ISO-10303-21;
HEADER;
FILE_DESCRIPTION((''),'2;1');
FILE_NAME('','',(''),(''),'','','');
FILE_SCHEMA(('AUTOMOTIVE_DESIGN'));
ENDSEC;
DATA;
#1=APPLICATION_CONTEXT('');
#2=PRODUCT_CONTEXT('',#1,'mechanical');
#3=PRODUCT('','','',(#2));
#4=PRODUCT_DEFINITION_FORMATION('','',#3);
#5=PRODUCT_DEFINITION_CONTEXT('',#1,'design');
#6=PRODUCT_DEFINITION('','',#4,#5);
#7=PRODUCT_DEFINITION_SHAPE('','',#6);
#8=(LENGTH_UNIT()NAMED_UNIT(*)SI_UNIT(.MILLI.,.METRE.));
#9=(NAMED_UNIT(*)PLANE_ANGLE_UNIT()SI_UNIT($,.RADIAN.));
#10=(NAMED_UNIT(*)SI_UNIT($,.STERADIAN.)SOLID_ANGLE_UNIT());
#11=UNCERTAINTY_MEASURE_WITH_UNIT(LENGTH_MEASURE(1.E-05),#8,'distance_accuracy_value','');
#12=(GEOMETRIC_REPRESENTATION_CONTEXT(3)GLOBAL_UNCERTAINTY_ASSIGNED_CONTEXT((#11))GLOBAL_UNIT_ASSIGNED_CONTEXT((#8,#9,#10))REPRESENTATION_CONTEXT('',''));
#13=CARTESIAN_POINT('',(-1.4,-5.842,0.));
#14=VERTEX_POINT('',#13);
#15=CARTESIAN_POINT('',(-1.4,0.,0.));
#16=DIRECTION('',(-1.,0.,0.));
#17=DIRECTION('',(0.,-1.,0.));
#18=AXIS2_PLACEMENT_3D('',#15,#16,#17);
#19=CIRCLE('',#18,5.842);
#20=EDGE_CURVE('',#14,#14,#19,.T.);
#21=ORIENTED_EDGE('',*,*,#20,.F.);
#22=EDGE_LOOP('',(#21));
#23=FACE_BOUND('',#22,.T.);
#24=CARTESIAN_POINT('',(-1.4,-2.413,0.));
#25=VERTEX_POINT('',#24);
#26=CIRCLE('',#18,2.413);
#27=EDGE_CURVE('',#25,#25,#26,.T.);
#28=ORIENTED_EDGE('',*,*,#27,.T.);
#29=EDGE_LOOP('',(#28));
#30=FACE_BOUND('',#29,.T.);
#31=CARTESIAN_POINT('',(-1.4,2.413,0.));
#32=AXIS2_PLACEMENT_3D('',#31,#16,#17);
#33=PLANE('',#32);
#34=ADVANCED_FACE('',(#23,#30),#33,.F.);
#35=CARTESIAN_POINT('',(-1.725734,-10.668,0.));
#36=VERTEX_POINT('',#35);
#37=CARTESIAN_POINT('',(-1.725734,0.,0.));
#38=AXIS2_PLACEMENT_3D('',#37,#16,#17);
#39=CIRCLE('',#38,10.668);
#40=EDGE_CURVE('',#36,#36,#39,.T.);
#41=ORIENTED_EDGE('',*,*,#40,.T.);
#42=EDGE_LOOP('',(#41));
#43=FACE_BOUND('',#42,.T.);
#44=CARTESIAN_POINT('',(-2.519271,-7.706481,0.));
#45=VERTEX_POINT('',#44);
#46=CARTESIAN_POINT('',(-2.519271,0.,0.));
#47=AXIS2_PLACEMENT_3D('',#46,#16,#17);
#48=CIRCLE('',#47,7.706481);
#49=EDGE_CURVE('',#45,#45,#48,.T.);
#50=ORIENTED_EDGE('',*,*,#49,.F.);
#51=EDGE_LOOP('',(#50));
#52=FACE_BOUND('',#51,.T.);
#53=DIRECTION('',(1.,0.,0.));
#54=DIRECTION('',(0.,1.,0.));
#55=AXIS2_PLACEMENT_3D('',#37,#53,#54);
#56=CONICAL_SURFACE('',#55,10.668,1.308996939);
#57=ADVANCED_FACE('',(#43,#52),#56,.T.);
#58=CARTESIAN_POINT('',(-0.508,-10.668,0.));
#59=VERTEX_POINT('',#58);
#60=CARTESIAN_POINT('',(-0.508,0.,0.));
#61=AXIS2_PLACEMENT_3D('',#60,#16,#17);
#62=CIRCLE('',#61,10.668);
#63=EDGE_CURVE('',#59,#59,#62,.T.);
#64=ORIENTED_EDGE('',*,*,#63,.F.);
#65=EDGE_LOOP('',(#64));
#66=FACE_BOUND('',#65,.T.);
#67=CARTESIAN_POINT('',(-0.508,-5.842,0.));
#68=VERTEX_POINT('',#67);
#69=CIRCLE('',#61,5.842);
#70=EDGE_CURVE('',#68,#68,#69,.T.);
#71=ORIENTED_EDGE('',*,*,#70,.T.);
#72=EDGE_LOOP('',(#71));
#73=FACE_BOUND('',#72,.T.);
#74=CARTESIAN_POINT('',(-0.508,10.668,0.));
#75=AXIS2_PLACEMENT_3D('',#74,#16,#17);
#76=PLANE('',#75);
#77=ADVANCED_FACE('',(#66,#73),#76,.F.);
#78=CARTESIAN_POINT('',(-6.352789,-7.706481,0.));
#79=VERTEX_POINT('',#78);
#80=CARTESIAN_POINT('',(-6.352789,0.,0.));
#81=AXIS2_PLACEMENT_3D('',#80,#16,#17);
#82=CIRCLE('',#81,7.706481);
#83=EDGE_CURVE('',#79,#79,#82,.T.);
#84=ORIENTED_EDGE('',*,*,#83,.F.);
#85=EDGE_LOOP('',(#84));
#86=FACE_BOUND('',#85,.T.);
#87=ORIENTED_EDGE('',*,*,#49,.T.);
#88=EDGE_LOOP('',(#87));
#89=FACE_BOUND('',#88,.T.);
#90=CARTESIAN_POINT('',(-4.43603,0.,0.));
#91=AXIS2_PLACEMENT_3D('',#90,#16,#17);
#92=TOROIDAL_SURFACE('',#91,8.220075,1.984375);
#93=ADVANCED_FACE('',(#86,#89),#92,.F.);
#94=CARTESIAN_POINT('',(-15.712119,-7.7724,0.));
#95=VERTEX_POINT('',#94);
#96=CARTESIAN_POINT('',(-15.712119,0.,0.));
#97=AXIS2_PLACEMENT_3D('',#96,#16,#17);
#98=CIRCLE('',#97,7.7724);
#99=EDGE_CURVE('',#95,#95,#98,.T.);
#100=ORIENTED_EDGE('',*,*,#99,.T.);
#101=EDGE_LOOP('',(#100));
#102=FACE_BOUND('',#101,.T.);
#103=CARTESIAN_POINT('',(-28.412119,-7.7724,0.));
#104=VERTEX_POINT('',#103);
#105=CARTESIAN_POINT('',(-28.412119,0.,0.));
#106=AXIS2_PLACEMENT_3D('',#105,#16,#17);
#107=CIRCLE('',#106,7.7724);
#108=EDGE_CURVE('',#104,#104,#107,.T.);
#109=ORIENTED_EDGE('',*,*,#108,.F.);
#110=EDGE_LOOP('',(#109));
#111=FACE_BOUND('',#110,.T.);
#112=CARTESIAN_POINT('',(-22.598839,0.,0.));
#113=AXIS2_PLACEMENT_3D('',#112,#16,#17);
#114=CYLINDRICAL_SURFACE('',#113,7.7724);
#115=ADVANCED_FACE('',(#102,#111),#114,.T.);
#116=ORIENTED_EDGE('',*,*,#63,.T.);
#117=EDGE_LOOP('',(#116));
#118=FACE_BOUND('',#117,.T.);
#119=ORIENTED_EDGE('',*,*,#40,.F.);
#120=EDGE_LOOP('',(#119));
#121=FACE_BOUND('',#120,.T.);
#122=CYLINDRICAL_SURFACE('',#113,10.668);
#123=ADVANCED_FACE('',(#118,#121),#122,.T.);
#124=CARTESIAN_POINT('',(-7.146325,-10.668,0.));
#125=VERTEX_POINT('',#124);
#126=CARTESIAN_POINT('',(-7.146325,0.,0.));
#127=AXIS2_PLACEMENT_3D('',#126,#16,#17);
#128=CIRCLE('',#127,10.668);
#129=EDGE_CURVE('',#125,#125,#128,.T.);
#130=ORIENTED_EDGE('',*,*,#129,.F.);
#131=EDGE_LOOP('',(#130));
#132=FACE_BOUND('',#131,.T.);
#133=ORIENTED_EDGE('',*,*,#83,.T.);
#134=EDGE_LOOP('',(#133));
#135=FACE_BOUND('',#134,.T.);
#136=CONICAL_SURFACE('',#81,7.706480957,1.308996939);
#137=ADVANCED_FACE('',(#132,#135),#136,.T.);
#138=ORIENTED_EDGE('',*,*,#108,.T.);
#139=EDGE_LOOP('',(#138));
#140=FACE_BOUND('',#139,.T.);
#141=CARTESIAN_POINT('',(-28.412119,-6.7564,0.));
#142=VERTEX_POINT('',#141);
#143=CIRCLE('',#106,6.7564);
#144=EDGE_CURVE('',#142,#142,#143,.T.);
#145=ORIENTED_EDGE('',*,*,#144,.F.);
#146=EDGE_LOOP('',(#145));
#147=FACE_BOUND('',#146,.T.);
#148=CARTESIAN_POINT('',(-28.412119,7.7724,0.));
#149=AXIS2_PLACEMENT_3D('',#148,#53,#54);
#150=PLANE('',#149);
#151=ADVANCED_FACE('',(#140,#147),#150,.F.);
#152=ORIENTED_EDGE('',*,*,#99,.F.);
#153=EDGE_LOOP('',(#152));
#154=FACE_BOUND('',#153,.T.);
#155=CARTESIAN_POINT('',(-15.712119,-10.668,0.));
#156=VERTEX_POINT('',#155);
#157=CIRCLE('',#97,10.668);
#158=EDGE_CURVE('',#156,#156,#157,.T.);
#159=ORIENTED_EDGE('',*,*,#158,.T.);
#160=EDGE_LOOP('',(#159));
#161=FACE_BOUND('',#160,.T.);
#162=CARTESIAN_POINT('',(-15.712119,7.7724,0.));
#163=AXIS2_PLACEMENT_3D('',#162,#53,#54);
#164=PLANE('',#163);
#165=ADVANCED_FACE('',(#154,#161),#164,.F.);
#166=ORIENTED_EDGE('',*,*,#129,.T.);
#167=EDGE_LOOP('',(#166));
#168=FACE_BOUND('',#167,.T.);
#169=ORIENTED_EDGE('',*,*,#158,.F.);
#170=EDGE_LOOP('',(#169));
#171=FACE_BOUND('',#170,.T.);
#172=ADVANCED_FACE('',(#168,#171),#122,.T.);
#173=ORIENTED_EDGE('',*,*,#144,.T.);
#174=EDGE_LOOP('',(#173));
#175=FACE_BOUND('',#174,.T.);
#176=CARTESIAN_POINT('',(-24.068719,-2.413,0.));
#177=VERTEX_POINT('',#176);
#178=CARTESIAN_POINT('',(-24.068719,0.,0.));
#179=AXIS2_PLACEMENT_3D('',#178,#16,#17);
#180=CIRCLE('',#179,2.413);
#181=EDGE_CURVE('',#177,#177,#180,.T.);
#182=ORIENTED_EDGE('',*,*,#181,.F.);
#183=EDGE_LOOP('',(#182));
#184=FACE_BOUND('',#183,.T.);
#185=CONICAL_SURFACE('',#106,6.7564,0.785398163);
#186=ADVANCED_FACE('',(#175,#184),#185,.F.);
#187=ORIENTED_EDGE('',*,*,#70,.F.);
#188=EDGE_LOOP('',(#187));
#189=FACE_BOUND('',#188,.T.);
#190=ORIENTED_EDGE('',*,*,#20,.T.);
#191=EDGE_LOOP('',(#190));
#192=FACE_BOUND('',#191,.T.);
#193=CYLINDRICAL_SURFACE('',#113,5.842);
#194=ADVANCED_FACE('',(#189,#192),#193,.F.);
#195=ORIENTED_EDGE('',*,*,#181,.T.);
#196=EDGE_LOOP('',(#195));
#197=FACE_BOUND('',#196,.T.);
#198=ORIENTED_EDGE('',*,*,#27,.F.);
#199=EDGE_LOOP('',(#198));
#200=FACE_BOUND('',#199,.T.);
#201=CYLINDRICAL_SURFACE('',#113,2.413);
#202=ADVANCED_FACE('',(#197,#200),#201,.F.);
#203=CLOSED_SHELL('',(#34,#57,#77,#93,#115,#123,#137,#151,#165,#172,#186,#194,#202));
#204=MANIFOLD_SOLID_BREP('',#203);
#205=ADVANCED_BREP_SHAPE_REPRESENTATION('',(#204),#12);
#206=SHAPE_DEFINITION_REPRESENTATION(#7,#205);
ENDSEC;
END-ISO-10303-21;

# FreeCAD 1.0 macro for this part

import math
import FreeCAD as App
import Part
import Sketcher
Q = App.Units.Quantity

doc = App.newDocument("Part")
params = doc.addObject("Spreadsheet::Sheet", "Params")
for row, (alias, value) in enumerate([
    ("sketch1_width", "0.5 in"),
    ("sketch1_radius", "0.078125 in"),
    ("sketch1_height", "0.04 in"),
    ("sketch1_height2", "0.19 in"),
    ("sketch1_height3", "0.114 in"),
    ("revolution_angle", "360 deg"),
], start=1):
    params.set(f"A{row}", alias)
    params.set(f"B{row}", "=" + value)
    params.setAlias(f"B{row}", alias)

body = doc.addObject("PartDesign::Body", "Body")

sketch1 = body.newObject("Sketcher::SketchObject", "Sketch")
sketch1.AttachmentSupport = (doc.getObject("XY_Plane"), [""])
sketch1.MapMode = "FlatFace"
sketch1.addGeometry([
    Part.LineSegment(App.Vector(-1.725734, 10.668, 0), App.Vector(-2.519271, 7.706481, 0)),
    Part.ArcOfCircle(Part.Circle(App.Vector(-4.43603, 8.220075, 0), App.Vector(0, 0, 1), 1.984375), math.radians(-165), math.radians(-15)),
    Part.LineSegment(App.Vector(-6.352789, 7.706481, 0), App.Vector(-7.146325, 10.668, 0)),
    Part.LineSegment(App.Vector(-7.146325, 10.668, 0), App.Vector(-15.712119, 10.668, 0)),
    Part.LineSegment(App.Vector(-15.712119, 10.668, 0), App.Vector(-15.712119, 7.7724, 0)),
    Part.LineSegment(App.Vector(-15.712119, 7.7724, 0), App.Vector(-28.412119, 7.7724, 0)),
    Part.LineSegment(App.Vector(-28.412119, 7.7724, 0), App.Vector(-28.412119, 6.7564, 0)),
    Part.LineSegment(App.Vector(-28.412119, 6.7564, 0), App.Vector(-24.068719, 2.413, 0)),
    Part.LineSegment(App.Vector(-24.068719, 2.413, 0), App.Vector(-1.4, 2.413, 0)),
    Part.LineSegment(App.Vector(-1.4, 2.413, 0), App.Vector(-1.4, 5.842, 0)),
    Part.LineSegment(App.Vector(-1.4, 5.842, 0), App.Vector(-0.508, 5.842, 0)),
    Part.LineSegment(App.Vector(-0.508, 5.842, 0), App.Vector(-0.508, 10.668, 0)),
    Part.LineSegment(App.Vector(-0.508, 10.668, 0), App.Vector(-1.725734, 10.668, 0)),
], False)
sketch1.addConstraint([
    Sketcher.Constraint("Tangent", 0, 2, 1, 2),
    Sketcher.Constraint("Tangent", 1, 1, 2, 1),
    Sketcher.Constraint("Coincident", 2, 2, 3, 1),
    Sketcher.Constraint("Coincident", 3, 2, 4, 1),
    Sketcher.Constraint("Coincident", 4, 2, 5, 1),
    Sketcher.Constraint("Coincident", 5, 2, 6, 1),
    Sketcher.Constraint("Coincident", 6, 2, 7, 1),
    Sketcher.Constraint("Coincident", 7, 2, 8, 1),
    Sketcher.Constraint("Coincident", 8, 2, 9, 1),
    Sketcher.Constraint("Coincident", 9, 2, 10, 1),
    Sketcher.Constraint("Coincident", 10, 2, 11, 1),
    Sketcher.Constraint("Coincident", 11, 2, 12, 1),
    Sketcher.Constraint("Coincident", 12, 2, 0, 1),
    Sketcher.Constraint("Horizontal", 3),
    Sketcher.Constraint("Vertical", 4),
    Sketcher.Constraint("Horizontal", 5),
    Sketcher.Constraint("Vertical", 6),
    Sketcher.Constraint("Horizontal", 8),
    Sketcher.Constraint("Vertical", 9),
    Sketcher.Constraint("Horizontal", 10),
    Sketcher.Constraint("Vertical", 11),
    Sketcher.Constraint("Horizontal", 12),
    Sketcher.Constraint("Horizontal", 0, 2, 1, 1),
    Sketcher.Constraint("Horizontal", 3, 2, 11, 2),
    Sketcher.Constraint("DistanceX", 5, 2, 5, 1, Q("0.5 in")),
    Sketcher.Constraint("Angle", 0, Q("-105 deg")),
    Sketcher.Constraint("Angle", 7, Q("-45 deg")),
    Sketcher.Constraint("Radius", 1, Q("0.078125 in")),
    Sketcher.Constraint("DistanceY", 6, 2, 6, 1, Q("0.04 in")),
    Sketcher.Constraint("DistanceY", 11, 1, 11, 2, Q("0.19 in")),
    Sketcher.Constraint("DistanceY", 4, 2, 4, 1, Q("0.114 in")),
    Sketcher.Constraint("DistanceY", 9, 1, 9, 2, Q("0.135 in")),
    Sketcher.Constraint("DistanceY", -1, 1, 2, 2, Q("0.42 in")),
    Sketcher.Constraint("DistanceX", 10, 2, -1, 1, Q("0.02 in")),
    Sketcher.Constraint("DistanceX", 10, 1, 10, 2, Q("0.892 mm")),
    Sketcher.Constraint("DistanceX", 8, 1, 8, 2, Q("22.668719 mm")),
    Sketcher.Constraint("Distance", 0, Q("3.06599 mm")),
    Sketcher.Constraint("DistanceX", 3, 2, 3, 1, Q("8.565794 mm")),
])
sketch1.setExpression("Constraints[24]", "Params.sketch1_width")
sketch1.setExpression("Constraints[27]", "Params.sketch1_radius")
sketch1.setExpression("Constraints[28]", "Params.sketch1_height")
sketch1.setExpression("Constraints[29]", "Params.sketch1_height2")
sketch1.setExpression("Constraints[30]", "Params.sketch1_height3")
revolution = body.newObject("PartDesign::Revolution", "Revolution")
revolution.Profile = sketch1
revolution.ReferenceAxis = (sketch1, ["H_Axis"])
revolution.setExpression("Angle", "Params.revolution_angle")

doc.recompute()
